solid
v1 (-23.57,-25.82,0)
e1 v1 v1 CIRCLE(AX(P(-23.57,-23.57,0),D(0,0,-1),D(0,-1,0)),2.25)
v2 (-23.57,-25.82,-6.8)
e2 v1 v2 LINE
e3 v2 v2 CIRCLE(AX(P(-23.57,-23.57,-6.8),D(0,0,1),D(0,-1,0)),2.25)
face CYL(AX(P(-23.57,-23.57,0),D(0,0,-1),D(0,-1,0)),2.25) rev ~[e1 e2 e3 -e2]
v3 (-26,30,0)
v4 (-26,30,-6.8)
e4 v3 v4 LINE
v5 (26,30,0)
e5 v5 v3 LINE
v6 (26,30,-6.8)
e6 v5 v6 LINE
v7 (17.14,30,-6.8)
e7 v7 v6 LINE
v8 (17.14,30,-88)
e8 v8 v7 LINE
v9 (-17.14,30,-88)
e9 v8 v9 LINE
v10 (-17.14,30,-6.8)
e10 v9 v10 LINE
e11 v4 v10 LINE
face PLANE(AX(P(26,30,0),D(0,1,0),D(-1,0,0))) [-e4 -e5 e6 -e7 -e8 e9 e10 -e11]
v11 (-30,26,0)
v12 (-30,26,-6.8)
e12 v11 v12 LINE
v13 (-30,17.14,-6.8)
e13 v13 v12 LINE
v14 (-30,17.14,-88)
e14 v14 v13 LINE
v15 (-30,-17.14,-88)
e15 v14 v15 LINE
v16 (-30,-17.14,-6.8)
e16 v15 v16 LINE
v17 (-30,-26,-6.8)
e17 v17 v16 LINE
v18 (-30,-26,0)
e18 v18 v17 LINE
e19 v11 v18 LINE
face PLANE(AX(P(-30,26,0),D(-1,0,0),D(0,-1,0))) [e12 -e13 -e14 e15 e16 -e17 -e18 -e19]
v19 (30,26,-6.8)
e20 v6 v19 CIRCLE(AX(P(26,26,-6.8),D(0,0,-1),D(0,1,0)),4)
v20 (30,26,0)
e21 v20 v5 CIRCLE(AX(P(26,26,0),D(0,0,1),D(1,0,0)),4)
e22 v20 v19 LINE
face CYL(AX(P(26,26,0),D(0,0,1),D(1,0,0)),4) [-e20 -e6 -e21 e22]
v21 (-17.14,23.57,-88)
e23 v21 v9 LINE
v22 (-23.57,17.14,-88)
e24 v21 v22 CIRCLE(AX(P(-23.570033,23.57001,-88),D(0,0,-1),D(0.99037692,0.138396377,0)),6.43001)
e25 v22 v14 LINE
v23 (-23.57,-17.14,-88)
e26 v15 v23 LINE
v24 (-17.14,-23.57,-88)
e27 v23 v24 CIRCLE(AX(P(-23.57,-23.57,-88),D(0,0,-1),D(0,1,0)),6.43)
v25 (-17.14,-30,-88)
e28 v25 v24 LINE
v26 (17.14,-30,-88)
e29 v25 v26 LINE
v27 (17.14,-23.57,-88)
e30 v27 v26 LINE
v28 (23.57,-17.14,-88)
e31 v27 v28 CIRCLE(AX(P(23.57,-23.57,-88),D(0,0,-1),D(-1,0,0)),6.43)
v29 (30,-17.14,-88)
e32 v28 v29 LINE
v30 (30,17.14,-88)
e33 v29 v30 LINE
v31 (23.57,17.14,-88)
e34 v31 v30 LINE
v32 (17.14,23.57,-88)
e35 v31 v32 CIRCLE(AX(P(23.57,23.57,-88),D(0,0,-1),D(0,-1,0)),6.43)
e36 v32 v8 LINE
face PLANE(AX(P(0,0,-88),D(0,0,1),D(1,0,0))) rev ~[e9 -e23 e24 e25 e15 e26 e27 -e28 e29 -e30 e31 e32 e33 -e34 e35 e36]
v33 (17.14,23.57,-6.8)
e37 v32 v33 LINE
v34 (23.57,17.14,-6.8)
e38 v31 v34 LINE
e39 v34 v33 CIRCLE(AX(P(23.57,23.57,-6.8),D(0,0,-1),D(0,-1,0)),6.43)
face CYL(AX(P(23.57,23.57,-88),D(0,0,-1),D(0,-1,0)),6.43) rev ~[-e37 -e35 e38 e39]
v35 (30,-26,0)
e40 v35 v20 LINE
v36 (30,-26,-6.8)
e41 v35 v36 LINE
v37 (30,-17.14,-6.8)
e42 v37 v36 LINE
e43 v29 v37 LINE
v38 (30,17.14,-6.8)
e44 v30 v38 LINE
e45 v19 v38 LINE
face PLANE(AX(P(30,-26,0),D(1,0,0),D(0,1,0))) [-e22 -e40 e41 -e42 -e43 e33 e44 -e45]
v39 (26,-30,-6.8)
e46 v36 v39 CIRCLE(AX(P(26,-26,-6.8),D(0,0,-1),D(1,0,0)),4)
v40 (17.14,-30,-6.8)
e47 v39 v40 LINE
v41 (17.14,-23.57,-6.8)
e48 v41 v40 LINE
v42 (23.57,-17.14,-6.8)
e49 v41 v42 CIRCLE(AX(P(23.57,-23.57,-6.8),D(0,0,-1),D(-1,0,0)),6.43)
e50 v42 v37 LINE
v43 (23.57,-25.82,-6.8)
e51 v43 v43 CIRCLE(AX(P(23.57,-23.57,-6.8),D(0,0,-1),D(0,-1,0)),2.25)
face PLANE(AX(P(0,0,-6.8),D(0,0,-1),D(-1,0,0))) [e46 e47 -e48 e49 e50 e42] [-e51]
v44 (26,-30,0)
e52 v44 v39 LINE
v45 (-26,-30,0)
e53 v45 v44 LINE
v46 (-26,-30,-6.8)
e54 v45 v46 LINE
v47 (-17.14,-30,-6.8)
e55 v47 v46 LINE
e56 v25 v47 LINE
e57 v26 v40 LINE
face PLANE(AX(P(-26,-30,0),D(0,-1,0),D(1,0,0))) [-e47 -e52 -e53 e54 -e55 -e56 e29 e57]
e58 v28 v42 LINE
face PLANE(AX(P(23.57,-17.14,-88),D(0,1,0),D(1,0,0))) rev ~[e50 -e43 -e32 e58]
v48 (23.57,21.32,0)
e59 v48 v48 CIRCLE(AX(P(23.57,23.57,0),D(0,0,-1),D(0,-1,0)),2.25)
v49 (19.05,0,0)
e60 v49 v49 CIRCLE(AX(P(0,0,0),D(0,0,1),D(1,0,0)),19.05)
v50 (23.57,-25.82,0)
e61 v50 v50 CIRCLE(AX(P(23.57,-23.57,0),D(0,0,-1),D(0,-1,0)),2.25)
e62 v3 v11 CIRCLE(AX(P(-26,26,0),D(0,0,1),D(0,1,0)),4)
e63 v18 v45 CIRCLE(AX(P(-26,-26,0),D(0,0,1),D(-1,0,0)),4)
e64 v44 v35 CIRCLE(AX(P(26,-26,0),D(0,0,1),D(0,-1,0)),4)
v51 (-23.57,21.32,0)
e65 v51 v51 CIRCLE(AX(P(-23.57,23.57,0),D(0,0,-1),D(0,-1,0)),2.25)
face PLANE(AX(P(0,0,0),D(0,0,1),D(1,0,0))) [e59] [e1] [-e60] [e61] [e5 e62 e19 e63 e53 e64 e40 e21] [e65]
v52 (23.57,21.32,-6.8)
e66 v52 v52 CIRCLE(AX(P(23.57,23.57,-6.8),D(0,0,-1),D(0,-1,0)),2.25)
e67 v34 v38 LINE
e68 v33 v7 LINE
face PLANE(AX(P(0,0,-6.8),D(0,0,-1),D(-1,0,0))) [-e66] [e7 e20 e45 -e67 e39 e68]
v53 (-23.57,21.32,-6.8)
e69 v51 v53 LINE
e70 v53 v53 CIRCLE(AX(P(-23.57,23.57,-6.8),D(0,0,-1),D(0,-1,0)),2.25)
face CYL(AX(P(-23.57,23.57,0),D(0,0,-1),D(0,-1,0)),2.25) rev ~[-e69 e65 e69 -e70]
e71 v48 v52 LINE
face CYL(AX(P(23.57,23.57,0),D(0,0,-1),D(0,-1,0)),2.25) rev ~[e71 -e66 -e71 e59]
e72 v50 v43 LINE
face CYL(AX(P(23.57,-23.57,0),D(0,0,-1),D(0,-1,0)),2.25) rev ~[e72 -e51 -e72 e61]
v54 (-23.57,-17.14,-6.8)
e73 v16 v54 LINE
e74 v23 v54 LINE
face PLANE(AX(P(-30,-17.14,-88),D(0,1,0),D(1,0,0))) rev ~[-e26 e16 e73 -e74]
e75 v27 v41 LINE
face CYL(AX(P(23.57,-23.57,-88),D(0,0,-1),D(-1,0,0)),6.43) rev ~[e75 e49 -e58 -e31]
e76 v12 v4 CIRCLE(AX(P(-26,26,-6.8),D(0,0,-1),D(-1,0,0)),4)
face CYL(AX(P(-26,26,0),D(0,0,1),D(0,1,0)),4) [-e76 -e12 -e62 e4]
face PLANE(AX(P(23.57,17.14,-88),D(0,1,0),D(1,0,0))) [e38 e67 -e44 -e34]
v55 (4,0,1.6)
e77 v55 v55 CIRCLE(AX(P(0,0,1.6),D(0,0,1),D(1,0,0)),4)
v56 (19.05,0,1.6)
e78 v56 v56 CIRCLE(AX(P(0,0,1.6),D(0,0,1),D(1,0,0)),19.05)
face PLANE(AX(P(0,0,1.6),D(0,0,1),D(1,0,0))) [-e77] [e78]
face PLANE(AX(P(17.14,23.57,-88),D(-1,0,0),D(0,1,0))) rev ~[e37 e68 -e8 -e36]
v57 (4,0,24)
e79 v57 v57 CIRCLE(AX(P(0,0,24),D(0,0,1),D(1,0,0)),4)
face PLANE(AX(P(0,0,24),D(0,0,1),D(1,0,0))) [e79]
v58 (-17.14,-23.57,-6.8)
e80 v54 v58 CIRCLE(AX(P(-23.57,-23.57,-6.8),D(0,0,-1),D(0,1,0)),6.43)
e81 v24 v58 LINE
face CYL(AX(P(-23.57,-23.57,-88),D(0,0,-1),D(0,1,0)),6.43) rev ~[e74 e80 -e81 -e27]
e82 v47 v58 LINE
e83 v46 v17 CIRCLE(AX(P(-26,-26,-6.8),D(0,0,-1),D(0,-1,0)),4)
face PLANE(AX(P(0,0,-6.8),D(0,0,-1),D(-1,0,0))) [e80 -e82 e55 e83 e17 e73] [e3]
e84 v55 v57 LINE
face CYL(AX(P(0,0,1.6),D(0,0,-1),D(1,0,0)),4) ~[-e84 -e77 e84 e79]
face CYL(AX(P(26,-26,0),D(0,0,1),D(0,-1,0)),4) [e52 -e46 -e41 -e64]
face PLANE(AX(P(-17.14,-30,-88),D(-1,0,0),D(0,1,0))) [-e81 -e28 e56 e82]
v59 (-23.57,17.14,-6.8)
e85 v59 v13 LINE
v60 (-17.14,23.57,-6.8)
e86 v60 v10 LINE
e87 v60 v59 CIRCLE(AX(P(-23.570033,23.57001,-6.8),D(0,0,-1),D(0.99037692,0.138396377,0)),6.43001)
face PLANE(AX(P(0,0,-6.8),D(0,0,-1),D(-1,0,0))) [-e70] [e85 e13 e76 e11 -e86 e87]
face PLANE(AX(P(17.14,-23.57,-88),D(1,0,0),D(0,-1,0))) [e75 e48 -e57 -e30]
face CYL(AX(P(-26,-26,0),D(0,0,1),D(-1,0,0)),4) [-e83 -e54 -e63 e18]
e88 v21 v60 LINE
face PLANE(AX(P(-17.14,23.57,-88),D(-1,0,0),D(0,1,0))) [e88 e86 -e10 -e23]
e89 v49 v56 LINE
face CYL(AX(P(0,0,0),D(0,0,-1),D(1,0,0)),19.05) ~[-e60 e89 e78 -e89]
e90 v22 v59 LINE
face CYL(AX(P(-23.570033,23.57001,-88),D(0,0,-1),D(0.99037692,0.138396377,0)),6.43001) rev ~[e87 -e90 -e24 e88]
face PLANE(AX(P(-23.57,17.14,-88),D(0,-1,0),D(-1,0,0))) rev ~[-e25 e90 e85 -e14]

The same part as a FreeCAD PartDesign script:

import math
import FreeCAD as App
import Part
import Sketcher

V = App.Vector
Q = App.Units.Quantity

doc = App.newDocument("Part")
body = doc.addObject("PartDesign::Body", "Body")

sketch1 = body.newObject("Sketcher::SketchObject", "Sketch")
sketch1.AttachmentSupport = (doc.getObject("XY_Plane"), [""])
sketch1.MapMode = "FlatFace"
sketch1.addGeometry([
    Part.ArcOfCircle(Part.Circle(V(-26, -26, 0), V(0, 0, 1), 4), math.radians(180), math.radians(270)),
    Part.LineSegment(V(-26, -30, 0), V(26, -30, 0)),
    Part.ArcOfCircle(Part.Circle(V(26, -26, 0), V(0, 0, 1), 4), math.radians(-90), math.radians(0)),
    Part.LineSegment(V(30, -26, 0), V(30, 26, 0)),
    Part.ArcOfCircle(Part.Circle(V(26, 26, 0), V(0, 0, 1), 4), math.radians(0), math.radians(90)),
    Part.LineSegment(V(26, 30, 0), V(-26, 30, 0)),
    Part.ArcOfCircle(Part.Circle(V(-26, 26, 0), V(0, 0, 1), 4), math.radians(90), math.radians(180)),
    Part.LineSegment(V(-30, 26, 0), V(-30, -26, 0)),
], False)
sketch1.addConstraint([
    Sketcher.Constraint("Tangent", 0, 2, 1, 1),
    Sketcher.Constraint("Tangent", 1, 2, 2, 1),
    Sketcher.Constraint("Tangent", 2, 2, 3, 1),
    Sketcher.Constraint("Tangent", 3, 2, 4, 1),
    Sketcher.Constraint("Tangent", 4, 2, 5, 1),
    Sketcher.Constraint("Tangent", 5, 2, 6, 1),
    Sketcher.Constraint("Tangent", 6, 2, 7, 1),
    Sketcher.Constraint("Tangent", 7, 2, 0, 1),
    Sketcher.Constraint("Horizontal", 1),
    Sketcher.Constraint("Vertical", 3),
    Sketcher.Constraint("Horizontal", 5),
    Sketcher.Constraint("Vertical", 7),
    Sketcher.Constraint("Equal", 0, 2),
    Sketcher.Constraint("Equal", 2, 4),
    Sketcher.Constraint("Equal", 4, 6),
    Sketcher.Constraint("Symmetric", 0, 3, 4, 3, -1, 1),
    Sketcher.Constraint("Equal", 5, 3),
    Sketcher.Constraint("Radius", 0, Q("4 mm")),
    Sketcher.Constraint("DistanceX", 1, 1, 1, 2, Q("52 mm")),
])
pad1 = body.newObject("PartDesign::Pad", "Pad")
pad1.Profile = sketch1
pad1.Length = 88
pad1.Reversed = True

sketch2 = body.newObject("Sketcher::SketchObject", "Sketch001")
sketch2.AttachmentSupport = (doc.getObject("XY_Plane"), [""])
sketch2.MapMode = "FlatFace"
sketch2.addGeometry(Part.Circle(V(0, 0, 0), V(0, 0, 1), 19), False)
sketch2.addConstraint([
    Sketcher.Constraint("Coincident", 0, 3, -1, 1),
    Sketcher.Constraint("Diameter", 0, Q("38.1 mm")),
])
pad2 = body.newObject("PartDesign::Pad", "Pad001")
pad2.Profile = sketch2
pad2.Length = 1.6

sketch3 = body.newObject("Sketcher::SketchObject", "Sketch002")
sketch3.AttachmentSupport = (doc.getObject("XY_Plane"), [""])
sketch3.MapMode = "FlatFace"
sketch3.addGeometry([
    Part.Circle(V(23.6, 23.6, 0), V(0, 0, 1), 2.2),
    Part.Circle(V(-23.6, 23.6, 0), V(0, 0, 1), 2.2),
    Part.Circle(V(-23.6, -23.6, 0), V(0, 0, 1), 2.2),
    Part.Circle(V(23.6, -23.6, 0), V(0, 0, 1), 2.2),
], False)
sketch3.addConstraint([
    Sketcher.Constraint("Equal", 0, 1),
    Sketcher.Constraint("Equal", 1, 2),
    Sketcher.Constraint("Equal", 2, 3),
    Sketcher.Constraint("Symmetric", 0, 3, 2, 3, -1, 1),
    Sketcher.Constraint("Symmetric", 1, 3, 3, 3, -1, 1),
    Sketcher.Constraint("Symmetric", 0, 3, 1, 3, -2),
    Sketcher.Constraint("Diameter", 0, Q("4.5 mm")),
    Sketcher.Constraint("DistanceX", -1, 1, 0, 3, Q("23.57 mm")),
    Sketcher.Constraint("DistanceY", -1, 1, 0, 3, Q("23.57 mm")),
])
doc.recompute()
hole = body.newObject("PartDesign::Hole", "Hole")
hole.Profile = sketch3
hole.ThreadType = "None"
hole.Diameter = 4.5
hole.DepthType = "ThroughAll"

sketch4 = body.newObject("Sketcher::SketchObject", "Sketch003")
sketch4.AttachmentSupport = (doc.getObject("XY_Plane"), [""])
sketch4.MapMode = "FlatFace"
sketch4.AttachmentOffset = App.Placement(V(0, 0, 1.6), App.Rotation())
sketch4.addGeometry(Part.Circle(V(0, 0, 0), V(0, 0, 1), 4), False)
sketch4.addConstraint([
    Sketcher.Constraint("Coincident", 0, 3, -1, 1),
    Sketcher.Constraint("Diameter", 0, Q("8 mm")),
])
pad3 = body.newObject("PartDesign::Pad", "Pad002")
pad3.Profile = sketch4
pad3.Length = 22.4

sketch5 = body.newObject("Sketcher::SketchObject", "Sketch004")
sketch5.AttachmentSupport = (doc.getObject("XY_Plane"), [""])
sketch5.MapMode = "FlatFace"
sketch5.AttachmentOffset = App.Placement(V(0, 0, -88), App.Rotation())
sketch5.addGeometry([
    Part.ArcOfCircle(Part.Circle(V(26, 26, 0), V(0, 0, 1), 4), math.radians(0), math.radians(90)),
    Part.LineSegment(V(30, 26, 0), V(30, 17.1, 0)),
    Part.LineSegment(V(30, 17.1, 0), V(23.6, 17.1, 0)),
    Part.ArcOfCircle(Part.Circle(V(23.6, 23.6, 0), V(0, 0, 1), 6.4), math.radians(180), math.radians(270)),
    Part.LineSegment(V(17.1, 23.6, 0), V(17.1, 30, 0)),
    Part.LineSegment(V(17.1, 30, 0), V(26, 30, 0)),
    Part.Circle(V(23.6, 23.6, 0), V(0, 0, 1), 2.2),
    Part.LineSegment(V(23.6, -17.1, 0), V(30, -17.1, 0)),
    Part.LineSegment(V(30, -17.1, 0), V(30, -26, 0)),
    Part.ArcOfCircle(Part.Circle(V(26, -26, 0), V(0, 0, 1), 4), math.radians(-90), math.radians(0)),
    Part.LineSegment(V(26, -30, 0), V(17.1, -30, 0)),
    Part.LineSegment(V(17.1, -30, 0), V(17.1, -23.6, 0)),
    Part.ArcOfCircle(Part.Circle(V(23.6, -23.6, 0), V(0, 0, 1), 6.4), math.radians(90), math.radians(180)),
    Part.Circle(V(23.6, -23.6, 0), V(0, 0, 1), 2.2),
    Part.LineSegment(V(-26, 30, 0), V(-17.1, 30, 0)),
    Part.LineSegment(V(-17.1, 30, 0), V(-17.1, 23.6, 0)),
    Part.ArcOfCircle(Part.Circle(V(-23.6, 23.6, 0), V(0, 0, 1), 6.4), math.radians(-90), math.radians(0)),
    Part.LineSegment(V(-23.6, 17.1, 0), V(-30, 17.1, 0)),
    Part.LineSegment(V(-30, 17.1, 0), V(-30, 26, 0)),
    Part.ArcOfCircle(Part.Circle(V(-26, 26, 0), V(0, 0, 1), 4), math.radians(90), math.radians(180)),
    Part.Circle(V(-23.6, 23.6, 0), V(0, 0, 1), 2.2),
    Part.LineSegment(V(-17.1, -23.6, 0), V(-17.1, -30, 0)),
    Part.LineSegment(V(-17.1, -30, 0), V(-26, -30, 0)),
    Part.ArcOfCircle(Part.Circle(V(-26, -26, 0), V(0, 0, 1), 4), math.radians(180), math.radians(270)),
    Part.LineSegment(V(-30, -26, 0), V(-30, -17.1, 0)),
    Part.LineSegment(V(-30, -17.1, 0), V(-23.6, -17.1, 0)),
    Part.ArcOfCircle(Part.Circle(V(-23.6, -23.6, 0), V(0, 0, 1), 6.4), math.radians(0), math.radians(90)),
    Part.Circle(V(-23.6, -23.6, 0), V(0, 0, 1), 2.2),
], False)
sketch5.addConstraint([
    Sketcher.Constraint("Tangent", 0, 1, 1, 1),
    Sketcher.Constraint("Coincident", 1, 2, 2, 1),
    Sketcher.Constraint("Tangent", 2, 2, 3, 2),
    Sketcher.Constraint("Tangent", 3, 1, 4, 1),
    Sketcher.Constraint("Coincident", 4, 2, 5, 1),
    Sketcher.Constraint("Tangent", 5, 2, 0, 2),
    Sketcher.Constraint("Coincident", 7, 2, 8, 1),
    Sketcher.Constraint("Tangent", 8, 2, 9, 2),
    Sketcher.Constraint("Tangent", 9, 1, 10, 1),
    Sketcher.Constraint("Coincident", 10, 2, 11, 1),
    Sketcher.Constraint("Tangent", 11, 2, 12, 2),
    Sketcher.Constraint("Tangent", 12, 1, 7, 1),
    Sketcher.Constraint("Coincident", 14, 2, 15, 1),
    Sketcher.Constraint("Tangent", 15, 2, 16, 2),
    Sketcher.Constraint("Tangent", 16, 1, 17, 1),
    Sketcher.Constraint("Coincident", 17, 2, 18, 1),
    Sketcher.Constraint("Tangent", 18, 2, 19, 2),
    Sketcher.Constraint("Tangent", 19, 1, 14, 1),
    Sketcher.Constraint("Coincident", 21, 2, 22, 1),
    Sketcher.Constraint("Tangent", 22, 2, 23, 2),
    Sketcher.Constraint("Tangent", 23, 1, 24, 1),
    Sketcher.Constraint("Coincident", 24, 2, 25, 1),
    Sketcher.Constraint("Tangent", 25, 2, 26, 2),
    Sketcher.Constraint("Tangent", 26, 1, 21, 1),
    Sketcher.Constraint("Vertical", 1),
    Sketcher.Constraint("Horizontal", 2),
    Sketcher.Constraint("Vertical", 4),
    Sketcher.Constraint("Horizontal", 5),
    Sketcher.Constraint("Horizontal", 7),
    Sketcher.Constraint("Vertical", 8),
    Sketcher.Constraint("Horizontal", 10),
    Sketcher.Constraint("Vertical", 11),
    Sketcher.Constraint("Horizontal", 14),
    Sketcher.Constraint("Vertical", 15),
    Sketcher.Constraint("Horizontal", 17),
    Sketcher.Constraint("Vertical", 18),
    Sketcher.Constraint("Vertical", 21),
    Sketcher.Constraint("Horizontal", 22),
    Sketcher.Constraint("Vertical", 24),
    Sketcher.Constraint("Horizontal", 25),
    Sketcher.Constraint("Coincident", 6, 3, 3, 3),
    Sketcher.Constraint("Coincident", 13, 3, 12, 3),
    Sketcher.Constraint("Coincident", 20, 3, 16, 3),
    Sketcher.Constraint("Coincident", 27, 3, 26, 3),
    Sketcher.Constraint("Equal", 0, 9),
    Sketcher.Constraint("Equal", 3, 12),
    Sketcher.Constraint("Equal", 6, 13),
    Sketcher.Constraint("Equal", 12, 16),
    Sketcher.Constraint("Equal", 9, 19),
    Sketcher.Constraint("Equal", 13, 20),
    Sketcher.Constraint("Equal", 19, 23),
    Sketcher.Constraint("Equal", 16, 26),
    Sketcher.Constraint("Equal", 20, 27),
    Sketcher.Constraint("Symmetric", 12, 3, 16, 3, -1, 1),
    Sketcher.Constraint("Symmetric", 9, 3, 19, 3, -1, 1),
    Sketcher.Constraint("Symmetric", 0, 3, 23, 3, -1, 1),
    Sketcher.Constraint("Symmetric", 3, 3, 26, 3, -1, 1),
    Sketcher.Constraint("Symmetric", 3, 3, 16, 3, -2),
    Sketcher.Constraint("Symmetric", 0, 3, 19, 3, -2),
    Sketcher.Constraint("Equal", 22, 1),
    Sketcher.Constraint("Radius", 0, Q("4 mm")),
    Sketcher.Constraint("Diameter", 6, Q("4.5 mm")),
    Sketcher.Constraint("Radius", 3, Q("6.43 mm")),
    Sketcher.Constraint("DistanceX", -1, 1, 0, 3, Q("26 mm")),
    Sketcher.Constraint("DistanceY", -1, 1, 0, 3, Q("26 mm")),
    Sketcher.Constraint("DistanceX", 2, 2, 2, 1, Q("6.43 mm")),
])
pocket1 = body.newObject("PartDesign::Pocket", "Pocket")
pocket1.Profile = sketch5
pocket1.Length = 81.2
pocket1.Reversed = True

doc.recompute()
